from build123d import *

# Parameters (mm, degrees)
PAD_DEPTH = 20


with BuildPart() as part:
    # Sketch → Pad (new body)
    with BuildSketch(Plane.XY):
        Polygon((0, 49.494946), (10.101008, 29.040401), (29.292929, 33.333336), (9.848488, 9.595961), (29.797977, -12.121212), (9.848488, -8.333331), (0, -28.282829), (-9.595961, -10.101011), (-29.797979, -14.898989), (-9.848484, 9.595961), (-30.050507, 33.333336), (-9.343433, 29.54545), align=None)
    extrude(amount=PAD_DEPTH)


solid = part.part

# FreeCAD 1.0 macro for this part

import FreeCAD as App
import Part
import Sketcher
from FreeCAD import Vector
Q = App.Units.Quantity


def add_polygon(sketch, points):
    """Adds a closed chain of lines whose ends are joined by coincident constraints."""
    first, n = sketch.GeometryCount, len(points)
    for a, b in zip(points, points[1:] + points[:1]):
        sketch.addGeometry(Part.LineSegment(App.Vector(*a, 0), App.Vector(*b, 0)), False)
    for i in range(n):
        sketch.addConstraint(Sketcher.Constraint("Coincident", first + i, 2, first + (i + 1) % n, 1))

doc = App.newDocument("Part")
params = doc.addObject("Spreadsheet::Sheet", "Params")
for row, (alias, value) in enumerate([
    ("pad1_length", "20 mm"),
], start=1):
    params.set(f"A{row}", alias)
    params.set(f"B{row}", "=" + value)
    params.setAlias(f"B{row}", alias)

body = doc.addObject("PartDesign::Body", "Body")

# Sketch on XY plane
sketch1 = doc.addObject("Sketcher::SketchObject", "Sketch")
body.addObject(sketch1)
sketch1.AttachmentSupport = (doc.XY_Plane, [""])
sketch1.MapMode = "FlatFace"
add_polygon(sketch1, [(10.101008, 29.040401), (0, 49.494946), (-9.343433, 29.54545), (-30.050507, 33.333336), (-9.848484, 9.595961), (-29.797979, -14.898989), (-9.595961, -10.101011), (0, -28.282829), (9.848488, -8.333331), (29.797977, -12.121212), (9.848488, 9.595961), (29.292929, 33.333336)])  # lines 0-11
sketch1.addConstraint([
    Sketcher.Constraint("Symmetric", 3, 2, 9, 2, -2),
    Sketcher.Constraint("PointOnObject", 0, 2, -2),
    Sketcher.Constraint("PointOnObject", 6, 2, -2),
    Sketcher.Constraint("Horizontal", 2, 2, 10, 2),
    Sketcher.Constraint("Vertical", 7, 2, 9, 2),
    Sketcher.Constraint("Distance", 4, Q("31.590899 mm")),
    Sketcher.Constraint("DistanceY", -1, 1, 11, 2, Q("29.040401 mm")),
    Sketcher.Constraint("DistanceY", 8, 2, 5, 2, Q("2.020201 mm")),
    Sketcher.Constraint("Distance", 0, Q("22.812689 mm")),
    Sketcher.Constraint("Distance", 1, Q("22.02912 mm")),
    Sketcher.Constraint("Distance", 6, Q("20.55872 mm")),
    Sketcher.Constraint("Distance", 9, Q("29.489281 mm")),
    Sketcher.Constraint("DistanceY", -1, 1, 1, 2, Q("29.54545 mm")),
    Sketcher.Constraint("DistanceY", -1, 1, 3, 2, Q("9.595961 mm")),
    Sketcher.Constraint("DistanceX", 4, 2, -1, 1, Q("29.797979 mm")),
    Sketcher.Constraint("DistanceY", 4, 2, -1, 1, Q("14.898989 mm")),
    Sketcher.Constraint("DistanceX", 5, 2, -1, 1, Q("9.595961 mm")),
    Sketcher.Constraint("DistanceY", 5, 2, -1, 1, Q("10.101011 mm")),
    Sketcher.Constraint("DistanceY", 7, 2, -1, 1, Q("8.333331 mm")),
    Sketcher.Constraint("DistanceX", -1, 1, 10, 2, Q("29.292929 mm")),
    Sketcher.Constraint("DistanceY", 2, 2, 0, 2, Q("16.16161 mm")),
    Sketcher.Constraint("DistanceX", 3, 2, 1, 2, Q("0.505051 mm")),
    Sketcher.Constraint("Distance", 2, Q("21.050677 mm")),
])
pad1 = doc.addObject("PartDesign::Pad", "Pad")
body.addObject(pad1)
pad1.Profile = sketch1
pad1.setExpression("Length", "Params.pad1_length")

doc.recompute()
